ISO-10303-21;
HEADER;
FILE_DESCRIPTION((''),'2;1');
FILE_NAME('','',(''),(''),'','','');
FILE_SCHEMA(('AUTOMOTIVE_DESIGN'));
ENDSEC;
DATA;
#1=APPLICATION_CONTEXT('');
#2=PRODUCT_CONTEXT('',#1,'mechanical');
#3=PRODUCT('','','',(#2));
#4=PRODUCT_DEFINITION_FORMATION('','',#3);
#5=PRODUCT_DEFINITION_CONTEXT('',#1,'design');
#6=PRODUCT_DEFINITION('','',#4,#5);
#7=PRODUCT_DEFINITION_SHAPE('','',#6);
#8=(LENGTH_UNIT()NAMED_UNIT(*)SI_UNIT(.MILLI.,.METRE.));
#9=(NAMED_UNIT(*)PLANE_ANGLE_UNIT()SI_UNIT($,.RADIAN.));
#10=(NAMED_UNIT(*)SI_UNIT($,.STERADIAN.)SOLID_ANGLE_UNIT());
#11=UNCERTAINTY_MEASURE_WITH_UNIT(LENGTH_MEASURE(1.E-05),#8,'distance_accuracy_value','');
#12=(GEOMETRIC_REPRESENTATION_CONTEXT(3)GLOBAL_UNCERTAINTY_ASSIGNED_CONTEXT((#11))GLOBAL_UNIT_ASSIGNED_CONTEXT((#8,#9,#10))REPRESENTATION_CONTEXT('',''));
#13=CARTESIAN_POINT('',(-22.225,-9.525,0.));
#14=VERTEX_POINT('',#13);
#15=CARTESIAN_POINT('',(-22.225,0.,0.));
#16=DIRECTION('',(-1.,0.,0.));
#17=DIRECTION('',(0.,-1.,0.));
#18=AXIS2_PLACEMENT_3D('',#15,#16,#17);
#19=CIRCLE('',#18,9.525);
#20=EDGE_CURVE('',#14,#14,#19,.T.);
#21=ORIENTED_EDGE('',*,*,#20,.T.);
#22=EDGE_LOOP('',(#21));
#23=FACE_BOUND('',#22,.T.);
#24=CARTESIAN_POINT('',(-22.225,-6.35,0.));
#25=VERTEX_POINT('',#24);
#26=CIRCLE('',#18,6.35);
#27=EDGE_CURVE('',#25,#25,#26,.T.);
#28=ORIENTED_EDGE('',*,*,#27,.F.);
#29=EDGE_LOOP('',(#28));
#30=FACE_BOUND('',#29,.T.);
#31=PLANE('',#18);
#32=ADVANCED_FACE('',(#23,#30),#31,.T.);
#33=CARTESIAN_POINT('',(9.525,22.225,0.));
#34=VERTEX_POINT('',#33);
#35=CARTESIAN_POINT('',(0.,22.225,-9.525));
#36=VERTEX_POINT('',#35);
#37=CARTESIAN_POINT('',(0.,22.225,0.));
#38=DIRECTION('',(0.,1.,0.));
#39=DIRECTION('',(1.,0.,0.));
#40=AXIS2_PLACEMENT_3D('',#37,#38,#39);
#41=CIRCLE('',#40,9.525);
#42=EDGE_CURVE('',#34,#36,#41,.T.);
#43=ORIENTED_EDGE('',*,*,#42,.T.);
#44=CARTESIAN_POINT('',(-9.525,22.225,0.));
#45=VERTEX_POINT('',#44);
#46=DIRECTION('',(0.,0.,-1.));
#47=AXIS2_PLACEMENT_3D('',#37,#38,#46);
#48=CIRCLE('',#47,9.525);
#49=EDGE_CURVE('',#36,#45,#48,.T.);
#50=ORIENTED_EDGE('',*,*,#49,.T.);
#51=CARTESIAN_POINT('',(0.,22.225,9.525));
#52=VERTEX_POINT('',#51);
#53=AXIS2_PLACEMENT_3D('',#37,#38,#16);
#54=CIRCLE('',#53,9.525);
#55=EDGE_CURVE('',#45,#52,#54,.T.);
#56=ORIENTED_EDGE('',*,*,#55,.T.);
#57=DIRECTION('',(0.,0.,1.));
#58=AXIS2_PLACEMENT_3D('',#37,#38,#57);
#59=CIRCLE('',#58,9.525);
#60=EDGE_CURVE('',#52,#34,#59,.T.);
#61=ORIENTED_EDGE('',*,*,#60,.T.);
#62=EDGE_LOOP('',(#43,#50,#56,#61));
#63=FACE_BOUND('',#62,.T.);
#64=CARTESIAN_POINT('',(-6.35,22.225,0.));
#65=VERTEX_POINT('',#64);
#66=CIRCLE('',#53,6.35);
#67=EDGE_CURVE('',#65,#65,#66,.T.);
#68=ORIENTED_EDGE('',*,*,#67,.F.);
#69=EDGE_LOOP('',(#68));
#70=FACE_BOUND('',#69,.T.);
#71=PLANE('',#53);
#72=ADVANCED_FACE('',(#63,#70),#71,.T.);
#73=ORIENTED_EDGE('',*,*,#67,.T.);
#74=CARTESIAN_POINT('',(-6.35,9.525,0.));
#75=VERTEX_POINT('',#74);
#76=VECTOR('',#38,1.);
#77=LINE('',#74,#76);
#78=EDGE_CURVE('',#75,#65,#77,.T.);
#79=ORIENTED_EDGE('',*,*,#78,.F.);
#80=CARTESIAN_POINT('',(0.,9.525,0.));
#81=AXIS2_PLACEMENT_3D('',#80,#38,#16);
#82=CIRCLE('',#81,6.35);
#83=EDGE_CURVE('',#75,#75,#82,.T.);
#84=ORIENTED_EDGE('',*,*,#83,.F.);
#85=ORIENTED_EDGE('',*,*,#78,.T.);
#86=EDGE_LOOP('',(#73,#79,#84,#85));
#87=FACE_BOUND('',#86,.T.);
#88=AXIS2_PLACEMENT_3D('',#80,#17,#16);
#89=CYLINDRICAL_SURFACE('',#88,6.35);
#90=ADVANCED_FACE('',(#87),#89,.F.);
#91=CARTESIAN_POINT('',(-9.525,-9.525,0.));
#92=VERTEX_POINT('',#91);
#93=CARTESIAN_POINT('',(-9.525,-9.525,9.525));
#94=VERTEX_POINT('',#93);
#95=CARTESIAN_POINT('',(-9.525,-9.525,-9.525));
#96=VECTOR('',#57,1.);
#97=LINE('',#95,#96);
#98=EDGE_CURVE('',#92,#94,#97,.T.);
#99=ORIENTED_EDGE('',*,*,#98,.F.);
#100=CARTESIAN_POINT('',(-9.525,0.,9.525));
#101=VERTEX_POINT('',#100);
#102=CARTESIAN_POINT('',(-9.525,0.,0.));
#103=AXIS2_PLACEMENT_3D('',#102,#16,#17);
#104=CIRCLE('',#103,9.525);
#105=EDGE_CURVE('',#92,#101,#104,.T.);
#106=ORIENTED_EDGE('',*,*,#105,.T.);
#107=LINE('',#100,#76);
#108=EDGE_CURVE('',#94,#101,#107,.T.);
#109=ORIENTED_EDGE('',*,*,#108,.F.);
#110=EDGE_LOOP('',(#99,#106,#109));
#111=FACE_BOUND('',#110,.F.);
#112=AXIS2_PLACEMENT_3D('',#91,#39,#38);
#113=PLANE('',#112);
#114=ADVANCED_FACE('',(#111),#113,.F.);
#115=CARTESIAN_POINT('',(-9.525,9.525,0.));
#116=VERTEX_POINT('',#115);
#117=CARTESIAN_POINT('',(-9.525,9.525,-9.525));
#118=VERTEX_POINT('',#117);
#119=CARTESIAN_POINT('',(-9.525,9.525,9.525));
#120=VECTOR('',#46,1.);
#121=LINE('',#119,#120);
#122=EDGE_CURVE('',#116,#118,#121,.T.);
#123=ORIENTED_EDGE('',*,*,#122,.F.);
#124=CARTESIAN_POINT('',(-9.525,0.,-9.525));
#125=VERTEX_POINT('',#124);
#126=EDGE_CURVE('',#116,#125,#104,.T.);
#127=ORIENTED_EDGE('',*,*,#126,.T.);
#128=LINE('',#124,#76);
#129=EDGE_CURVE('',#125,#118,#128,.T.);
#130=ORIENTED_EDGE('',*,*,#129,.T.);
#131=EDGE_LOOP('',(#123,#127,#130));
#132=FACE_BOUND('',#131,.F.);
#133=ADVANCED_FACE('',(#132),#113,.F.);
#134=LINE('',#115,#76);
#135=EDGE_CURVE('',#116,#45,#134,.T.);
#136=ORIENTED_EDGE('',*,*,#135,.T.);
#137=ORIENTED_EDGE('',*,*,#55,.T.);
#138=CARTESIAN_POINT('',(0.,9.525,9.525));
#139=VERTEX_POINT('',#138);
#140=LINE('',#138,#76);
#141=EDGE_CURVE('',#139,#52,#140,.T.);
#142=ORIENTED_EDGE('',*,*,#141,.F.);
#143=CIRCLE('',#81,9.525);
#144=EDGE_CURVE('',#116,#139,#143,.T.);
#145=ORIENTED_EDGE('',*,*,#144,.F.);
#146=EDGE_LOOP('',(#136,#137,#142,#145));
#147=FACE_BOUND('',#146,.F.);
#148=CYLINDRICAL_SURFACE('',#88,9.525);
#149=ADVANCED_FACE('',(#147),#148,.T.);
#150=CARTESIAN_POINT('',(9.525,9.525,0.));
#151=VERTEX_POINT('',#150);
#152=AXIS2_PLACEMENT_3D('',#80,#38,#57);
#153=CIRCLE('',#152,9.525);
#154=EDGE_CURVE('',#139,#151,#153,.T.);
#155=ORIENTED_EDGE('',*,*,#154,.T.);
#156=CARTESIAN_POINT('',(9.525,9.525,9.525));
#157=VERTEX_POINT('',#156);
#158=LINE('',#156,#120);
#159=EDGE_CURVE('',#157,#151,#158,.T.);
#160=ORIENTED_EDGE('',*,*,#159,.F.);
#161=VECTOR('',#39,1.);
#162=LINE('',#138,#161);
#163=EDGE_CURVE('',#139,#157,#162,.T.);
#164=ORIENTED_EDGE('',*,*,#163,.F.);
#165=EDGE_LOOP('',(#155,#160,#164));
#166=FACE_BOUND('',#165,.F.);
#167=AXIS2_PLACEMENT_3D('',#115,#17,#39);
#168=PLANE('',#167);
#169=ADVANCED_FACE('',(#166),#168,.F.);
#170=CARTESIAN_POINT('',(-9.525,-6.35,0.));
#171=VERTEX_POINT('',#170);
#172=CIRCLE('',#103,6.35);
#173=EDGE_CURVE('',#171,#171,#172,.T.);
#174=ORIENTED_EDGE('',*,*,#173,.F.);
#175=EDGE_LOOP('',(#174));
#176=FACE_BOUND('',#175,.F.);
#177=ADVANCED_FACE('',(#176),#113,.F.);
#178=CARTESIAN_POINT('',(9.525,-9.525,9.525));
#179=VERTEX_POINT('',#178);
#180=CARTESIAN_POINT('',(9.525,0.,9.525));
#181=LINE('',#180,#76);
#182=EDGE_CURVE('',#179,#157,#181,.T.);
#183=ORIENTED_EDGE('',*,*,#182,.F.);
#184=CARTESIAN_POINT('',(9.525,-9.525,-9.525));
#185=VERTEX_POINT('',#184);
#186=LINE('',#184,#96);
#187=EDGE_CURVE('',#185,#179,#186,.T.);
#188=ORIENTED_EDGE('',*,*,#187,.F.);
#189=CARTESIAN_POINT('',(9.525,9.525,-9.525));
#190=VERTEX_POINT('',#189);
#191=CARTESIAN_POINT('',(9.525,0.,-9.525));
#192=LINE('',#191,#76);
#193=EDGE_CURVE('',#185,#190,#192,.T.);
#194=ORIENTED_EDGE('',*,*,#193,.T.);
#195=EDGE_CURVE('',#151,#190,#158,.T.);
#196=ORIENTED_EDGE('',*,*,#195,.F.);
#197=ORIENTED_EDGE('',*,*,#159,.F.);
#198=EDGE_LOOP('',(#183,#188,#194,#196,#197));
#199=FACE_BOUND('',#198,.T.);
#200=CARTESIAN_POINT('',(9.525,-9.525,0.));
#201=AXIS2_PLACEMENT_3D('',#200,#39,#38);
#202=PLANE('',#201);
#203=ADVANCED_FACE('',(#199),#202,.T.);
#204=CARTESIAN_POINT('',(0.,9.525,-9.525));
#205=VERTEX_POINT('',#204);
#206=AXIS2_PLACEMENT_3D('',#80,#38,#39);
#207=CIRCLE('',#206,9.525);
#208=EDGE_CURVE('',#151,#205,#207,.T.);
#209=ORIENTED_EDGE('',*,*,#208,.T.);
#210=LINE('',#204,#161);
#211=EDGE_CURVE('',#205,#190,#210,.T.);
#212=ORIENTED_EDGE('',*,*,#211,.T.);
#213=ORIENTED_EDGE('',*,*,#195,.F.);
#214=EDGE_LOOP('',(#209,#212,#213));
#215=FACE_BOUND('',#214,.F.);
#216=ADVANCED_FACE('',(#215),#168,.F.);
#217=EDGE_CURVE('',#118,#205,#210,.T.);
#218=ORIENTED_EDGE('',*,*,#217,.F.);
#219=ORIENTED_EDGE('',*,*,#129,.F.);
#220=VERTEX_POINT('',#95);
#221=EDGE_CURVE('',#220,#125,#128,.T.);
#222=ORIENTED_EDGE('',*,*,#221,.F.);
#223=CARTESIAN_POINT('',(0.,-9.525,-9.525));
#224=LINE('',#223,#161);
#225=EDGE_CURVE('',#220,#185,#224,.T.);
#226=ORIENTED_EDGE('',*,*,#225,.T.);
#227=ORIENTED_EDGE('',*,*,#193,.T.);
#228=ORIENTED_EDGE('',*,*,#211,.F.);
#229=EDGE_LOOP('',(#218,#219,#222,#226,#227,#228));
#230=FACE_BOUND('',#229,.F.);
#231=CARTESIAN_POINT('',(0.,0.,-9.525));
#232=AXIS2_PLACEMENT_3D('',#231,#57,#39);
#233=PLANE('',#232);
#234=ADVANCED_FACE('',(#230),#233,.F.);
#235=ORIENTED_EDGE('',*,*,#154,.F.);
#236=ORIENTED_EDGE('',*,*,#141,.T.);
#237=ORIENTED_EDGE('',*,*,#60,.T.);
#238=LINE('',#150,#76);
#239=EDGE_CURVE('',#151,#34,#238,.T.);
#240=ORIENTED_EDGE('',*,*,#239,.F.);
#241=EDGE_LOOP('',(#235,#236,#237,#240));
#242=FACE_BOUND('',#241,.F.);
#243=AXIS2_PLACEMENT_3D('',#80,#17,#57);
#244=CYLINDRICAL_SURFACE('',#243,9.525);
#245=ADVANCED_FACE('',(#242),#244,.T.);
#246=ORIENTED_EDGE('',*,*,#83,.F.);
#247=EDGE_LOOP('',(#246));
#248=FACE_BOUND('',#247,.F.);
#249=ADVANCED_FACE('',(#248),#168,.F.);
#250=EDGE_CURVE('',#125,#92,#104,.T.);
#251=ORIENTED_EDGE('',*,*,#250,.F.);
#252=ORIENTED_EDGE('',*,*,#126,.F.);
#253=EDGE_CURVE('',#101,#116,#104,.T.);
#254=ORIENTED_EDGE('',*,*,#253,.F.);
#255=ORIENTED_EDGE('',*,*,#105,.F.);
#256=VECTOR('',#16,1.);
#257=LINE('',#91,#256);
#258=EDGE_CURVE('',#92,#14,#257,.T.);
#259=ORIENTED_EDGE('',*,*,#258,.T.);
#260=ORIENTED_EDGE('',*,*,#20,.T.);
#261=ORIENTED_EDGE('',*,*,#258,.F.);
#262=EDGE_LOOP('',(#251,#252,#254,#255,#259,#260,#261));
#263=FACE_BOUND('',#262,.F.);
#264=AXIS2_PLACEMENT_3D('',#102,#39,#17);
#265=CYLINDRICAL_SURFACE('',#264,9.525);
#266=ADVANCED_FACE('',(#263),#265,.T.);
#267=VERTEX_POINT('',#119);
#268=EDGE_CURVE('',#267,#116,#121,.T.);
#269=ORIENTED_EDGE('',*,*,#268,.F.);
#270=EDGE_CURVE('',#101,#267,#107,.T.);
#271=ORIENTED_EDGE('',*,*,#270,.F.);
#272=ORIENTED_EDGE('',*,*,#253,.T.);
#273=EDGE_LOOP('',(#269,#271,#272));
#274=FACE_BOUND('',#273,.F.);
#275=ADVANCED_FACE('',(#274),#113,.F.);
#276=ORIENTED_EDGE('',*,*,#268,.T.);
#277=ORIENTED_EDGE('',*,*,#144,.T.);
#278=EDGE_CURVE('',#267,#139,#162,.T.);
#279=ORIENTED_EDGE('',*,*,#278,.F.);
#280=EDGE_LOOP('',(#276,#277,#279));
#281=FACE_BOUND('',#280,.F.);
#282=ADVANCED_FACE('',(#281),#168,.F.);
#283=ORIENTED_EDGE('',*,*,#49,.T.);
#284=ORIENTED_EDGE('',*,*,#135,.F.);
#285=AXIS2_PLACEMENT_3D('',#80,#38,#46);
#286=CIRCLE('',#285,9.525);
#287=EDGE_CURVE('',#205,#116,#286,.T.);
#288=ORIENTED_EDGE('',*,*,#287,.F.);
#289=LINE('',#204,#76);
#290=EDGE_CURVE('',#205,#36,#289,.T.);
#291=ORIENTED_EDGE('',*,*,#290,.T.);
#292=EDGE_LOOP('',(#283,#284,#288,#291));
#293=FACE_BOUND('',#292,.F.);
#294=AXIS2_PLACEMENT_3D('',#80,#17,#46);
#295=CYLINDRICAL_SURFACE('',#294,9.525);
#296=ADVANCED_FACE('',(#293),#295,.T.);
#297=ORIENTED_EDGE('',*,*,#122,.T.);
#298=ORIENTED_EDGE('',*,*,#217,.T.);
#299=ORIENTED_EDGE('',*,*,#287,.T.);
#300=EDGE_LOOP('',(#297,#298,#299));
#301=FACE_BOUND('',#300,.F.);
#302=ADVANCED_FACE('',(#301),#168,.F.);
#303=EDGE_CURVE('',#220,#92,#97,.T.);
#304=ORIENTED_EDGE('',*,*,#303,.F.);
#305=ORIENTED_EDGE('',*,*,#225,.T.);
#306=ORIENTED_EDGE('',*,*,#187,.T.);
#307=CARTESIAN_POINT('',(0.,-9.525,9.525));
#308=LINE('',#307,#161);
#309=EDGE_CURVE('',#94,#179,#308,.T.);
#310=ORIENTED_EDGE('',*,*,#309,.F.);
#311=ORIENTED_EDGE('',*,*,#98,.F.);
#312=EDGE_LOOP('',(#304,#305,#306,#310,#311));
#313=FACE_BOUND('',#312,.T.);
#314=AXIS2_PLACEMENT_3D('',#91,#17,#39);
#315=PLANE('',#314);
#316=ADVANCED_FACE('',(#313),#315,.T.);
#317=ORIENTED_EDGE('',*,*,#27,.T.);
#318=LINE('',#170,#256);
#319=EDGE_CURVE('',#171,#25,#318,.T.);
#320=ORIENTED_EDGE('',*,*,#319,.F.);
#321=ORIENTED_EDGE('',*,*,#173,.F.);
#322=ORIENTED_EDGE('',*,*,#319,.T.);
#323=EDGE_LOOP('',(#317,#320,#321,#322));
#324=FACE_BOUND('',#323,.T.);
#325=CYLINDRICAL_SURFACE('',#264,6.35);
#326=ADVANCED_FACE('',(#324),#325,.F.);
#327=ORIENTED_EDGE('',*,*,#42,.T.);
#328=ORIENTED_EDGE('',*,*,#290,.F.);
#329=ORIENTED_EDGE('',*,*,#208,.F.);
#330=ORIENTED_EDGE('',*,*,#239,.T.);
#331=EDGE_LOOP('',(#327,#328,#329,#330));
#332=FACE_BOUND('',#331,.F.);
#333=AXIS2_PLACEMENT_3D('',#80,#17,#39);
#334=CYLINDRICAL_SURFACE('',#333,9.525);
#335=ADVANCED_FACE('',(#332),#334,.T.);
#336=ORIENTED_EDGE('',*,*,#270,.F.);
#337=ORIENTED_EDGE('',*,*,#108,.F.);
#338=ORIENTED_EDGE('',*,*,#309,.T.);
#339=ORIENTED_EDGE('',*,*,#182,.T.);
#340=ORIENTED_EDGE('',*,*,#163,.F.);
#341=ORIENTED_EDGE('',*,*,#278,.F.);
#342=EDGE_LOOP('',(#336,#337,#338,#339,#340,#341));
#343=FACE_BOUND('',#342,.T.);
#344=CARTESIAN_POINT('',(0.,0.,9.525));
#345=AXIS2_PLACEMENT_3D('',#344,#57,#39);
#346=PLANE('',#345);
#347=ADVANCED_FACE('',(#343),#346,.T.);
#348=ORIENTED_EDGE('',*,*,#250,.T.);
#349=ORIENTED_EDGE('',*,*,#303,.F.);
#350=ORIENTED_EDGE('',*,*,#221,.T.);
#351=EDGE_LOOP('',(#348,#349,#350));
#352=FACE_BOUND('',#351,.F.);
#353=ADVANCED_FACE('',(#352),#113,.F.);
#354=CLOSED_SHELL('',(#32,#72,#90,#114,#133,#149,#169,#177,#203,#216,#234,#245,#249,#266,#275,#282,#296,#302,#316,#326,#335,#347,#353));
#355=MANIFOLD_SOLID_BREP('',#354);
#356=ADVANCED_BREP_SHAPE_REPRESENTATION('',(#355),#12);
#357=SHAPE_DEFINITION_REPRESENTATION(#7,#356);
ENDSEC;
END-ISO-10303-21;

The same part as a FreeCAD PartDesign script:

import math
import FreeCAD as App
import Part
import Sketcher
from FreeCAD import Vector
Q = App.Units.Quantity


def add_polygon(sketch, points):
    """Adds a closed chain of lines whose ends are joined by coincident constraints."""
    first, n = sketch.GeometryCount, len(points)
    for a, b in zip(points, points[1:] + points[:1]):
        sketch.addGeometry(Part.LineSegment(App.Vector(*a, 0), App.Vector(*b, 0)), False)
    for i in range(n):
        sketch.addConstraint(Sketcher.Constraint("Coincident", first + i, 2, first + (i + 1) % n, 1))

doc = App.newDocument("Part")
params = doc.addObject("Spreadsheet::Sheet", "Params")
for row, (alias, value) in enumerate([
    ("sketch1_width", "0.75 in"),
    ("pad1_length", "0.75 in"),
    ("sketch2_diameter", "0.5 in"),
    ("sketch2_radius", "0.375 in"),
    ("pad2_length", "0.5 in"),
    ("sketch3_diameter", "0.5 in"),
    ("sketch3_diameter2", "0.75 in"),
    ("pad3_length", "0.5 in"),
], start=1):
    params.set(f"A{row}", alias)
    params.set(f"B{row}", "=" + value)
    params.setAlias(f"B{row}", alias)

body = doc.addObject("PartDesign::Body", "Body")

sketch1 = body.newObject("Sketcher::SketchObject", "Sketch")
sketch1.AttachmentSupport = (doc.getObject("XY_Plane"), [""])
sketch1.MapMode = "FlatFace"
add_polygon(sketch1, [(-10, 10), (-10, -10), (10, -10), (10, 10)])
sketch1.addConstraint(Sketcher.Constraint("Vertical", 0))
sketch1.addConstraint(Sketcher.Constraint("Horizontal", 1))
sketch1.addConstraint(Sketcher.Constraint("Vertical", 2))
sketch1.addConstraint(Sketcher.Constraint("Horizontal", 3))
sketch1.addConstraint(Sketcher.Constraint("Symmetric", 0, 2, 2, 2, -1, 1))
sketch1.addConstraint(Sketcher.Constraint("Equal", 3, 0))
sketch1.addConstraint(Sketcher.Constraint("DistanceX", 1, 1, 1, 2, Q("0.75 in")))
sketch1.setExpression("Constraints[10]", "Params.sketch1_width")
pad1 = body.newObject("PartDesign::Pad", "Pad")
pad1.Profile = sketch1
pad1.setExpression("Length", "Params.pad1_length")
pad1.Midplane = True

sketch2 = body.newObject("Sketcher::SketchObject", "Sketch001")
sketch2.AttachmentSupport = (doc.getObject("XZ_Plane"), [""])
sketch2.MapMode = "FlatFace"
sketch2.AttachmentOffset = App.Placement(Vector(0, 0, -0.375 * 25.4), App.Rotation())
sketch2.addGeometry(Part.ArcOfCircle(Part.Circle(Vector(0, 0, 0), Vector(0, 0, 1), 10), math.radians(180), math.radians(270)), False)
sketch2.addGeometry(Part.ArcOfCircle(Part.Circle(Vector(0, 0, 0), Vector(0, 0, 1), 10), math.radians(90), math.radians(180)), False)
sketch2.addGeometry(Part.ArcOfCircle(Part.Circle(Vector(0, 0, 0), Vector(0, 0, 1), 10), math.radians(0), math.radians(90)), False)
sketch2.addGeometry(Part.ArcOfCircle(Part.Circle(Vector(0, 0, 0), Vector(0, 0, 1), 10), math.radians(-90), math.radians(0)), False)
sketch2.addGeometry(Part.Circle(Vector(0, 0, 0), Vector(0, 0, 1), 6), False)
sketch2.addConstraint(Sketcher.Constraint("Tangent", 0, 1, 1, 2))
sketch2.addConstraint(Sketcher.Constraint("Tangent", 1, 1, 2, 2))
sketch2.addConstraint(Sketcher.Constraint("Tangent", 2, 1, 3, 2))
sketch2.addConstraint(Sketcher.Constraint("Tangent", 3, 1, 0, 2))
sketch2.addConstraint(Sketcher.Constraint("Coincident", 0, 3, -1, 1))
sketch2.addConstraint(Sketcher.Constraint("Coincident", 4, 3, -1, 1))
sketch2.addConstraint(Sketcher.Constraint("Equal", 0, 1))
sketch2.addConstraint(Sketcher.Constraint("PointOnObject", 0, 1, -1))
sketch2.addConstraint(Sketcher.Constraint("PointOnObject", 1, 1, -2))
sketch2.addConstraint(Sketcher.Constraint("PointOnObject", 2, 1, -1))
sketch2.addConstraint(Sketcher.Constraint("PointOnObject", 3, 1, -2))
sketch2.addConstraint(Sketcher.Constraint("Diameter", 4, Q("0.5 in")))
sketch2.addConstraint(Sketcher.Constraint("Radius", 0, Q("0.375 in")))
sketch2.setExpression("Constraints[11]", "Params.sketch2_diameter")
sketch2.setExpression("Constraints[12]", "Params.sketch2_radius")
pad2 = body.newObject("PartDesign::Pad", "Pad001")
pad2.Profile = sketch2
pad2.setExpression("Length", "Params.pad2_length")
pad2.Reversed = True

sketch3 = body.newObject("Sketcher::SketchObject", "Sketch002")
sketch3.AttachmentSupport = (doc.getObject("YZ_Plane"), [""])
sketch3.MapMode = "FlatFace"
sketch3.AttachmentOffset = App.Placement(Vector(0, 0, -0.375 * 25.4), App.Rotation())
sketch3.addGeometry(Part.Circle(Vector(0, 0, 0), Vector(0, 0, 1), 10), False)
sketch3.addGeometry(Part.Circle(Vector(0, 0, 0), Vector(0, 0, 1), 6), False)
sketch3.addConstraint(Sketcher.Constraint("Coincident", 0, 3, -1, 1))
sketch3.addConstraint(Sketcher.Constraint("Coincident", 1, 3, -1, 1))
sketch3.addConstraint(Sketcher.Constraint("Diameter", 1, Q("0.5 in")))
sketch3.addConstraint(Sketcher.Constraint("Diameter", 0, Q("0.75 in")))
sketch3.setExpression("Constraints[2]", "Params.sketch3_diameter")
sketch3.setExpression("Constraints[3]", "Params.sketch3_diameter2")
pad3 = body.newObject("PartDesign::Pad", "Pad002")
pad3.Profile = sketch3
pad3.setExpression("Length", "Params.pad3_length")
pad3.Reversed = True

doc.recompute()
